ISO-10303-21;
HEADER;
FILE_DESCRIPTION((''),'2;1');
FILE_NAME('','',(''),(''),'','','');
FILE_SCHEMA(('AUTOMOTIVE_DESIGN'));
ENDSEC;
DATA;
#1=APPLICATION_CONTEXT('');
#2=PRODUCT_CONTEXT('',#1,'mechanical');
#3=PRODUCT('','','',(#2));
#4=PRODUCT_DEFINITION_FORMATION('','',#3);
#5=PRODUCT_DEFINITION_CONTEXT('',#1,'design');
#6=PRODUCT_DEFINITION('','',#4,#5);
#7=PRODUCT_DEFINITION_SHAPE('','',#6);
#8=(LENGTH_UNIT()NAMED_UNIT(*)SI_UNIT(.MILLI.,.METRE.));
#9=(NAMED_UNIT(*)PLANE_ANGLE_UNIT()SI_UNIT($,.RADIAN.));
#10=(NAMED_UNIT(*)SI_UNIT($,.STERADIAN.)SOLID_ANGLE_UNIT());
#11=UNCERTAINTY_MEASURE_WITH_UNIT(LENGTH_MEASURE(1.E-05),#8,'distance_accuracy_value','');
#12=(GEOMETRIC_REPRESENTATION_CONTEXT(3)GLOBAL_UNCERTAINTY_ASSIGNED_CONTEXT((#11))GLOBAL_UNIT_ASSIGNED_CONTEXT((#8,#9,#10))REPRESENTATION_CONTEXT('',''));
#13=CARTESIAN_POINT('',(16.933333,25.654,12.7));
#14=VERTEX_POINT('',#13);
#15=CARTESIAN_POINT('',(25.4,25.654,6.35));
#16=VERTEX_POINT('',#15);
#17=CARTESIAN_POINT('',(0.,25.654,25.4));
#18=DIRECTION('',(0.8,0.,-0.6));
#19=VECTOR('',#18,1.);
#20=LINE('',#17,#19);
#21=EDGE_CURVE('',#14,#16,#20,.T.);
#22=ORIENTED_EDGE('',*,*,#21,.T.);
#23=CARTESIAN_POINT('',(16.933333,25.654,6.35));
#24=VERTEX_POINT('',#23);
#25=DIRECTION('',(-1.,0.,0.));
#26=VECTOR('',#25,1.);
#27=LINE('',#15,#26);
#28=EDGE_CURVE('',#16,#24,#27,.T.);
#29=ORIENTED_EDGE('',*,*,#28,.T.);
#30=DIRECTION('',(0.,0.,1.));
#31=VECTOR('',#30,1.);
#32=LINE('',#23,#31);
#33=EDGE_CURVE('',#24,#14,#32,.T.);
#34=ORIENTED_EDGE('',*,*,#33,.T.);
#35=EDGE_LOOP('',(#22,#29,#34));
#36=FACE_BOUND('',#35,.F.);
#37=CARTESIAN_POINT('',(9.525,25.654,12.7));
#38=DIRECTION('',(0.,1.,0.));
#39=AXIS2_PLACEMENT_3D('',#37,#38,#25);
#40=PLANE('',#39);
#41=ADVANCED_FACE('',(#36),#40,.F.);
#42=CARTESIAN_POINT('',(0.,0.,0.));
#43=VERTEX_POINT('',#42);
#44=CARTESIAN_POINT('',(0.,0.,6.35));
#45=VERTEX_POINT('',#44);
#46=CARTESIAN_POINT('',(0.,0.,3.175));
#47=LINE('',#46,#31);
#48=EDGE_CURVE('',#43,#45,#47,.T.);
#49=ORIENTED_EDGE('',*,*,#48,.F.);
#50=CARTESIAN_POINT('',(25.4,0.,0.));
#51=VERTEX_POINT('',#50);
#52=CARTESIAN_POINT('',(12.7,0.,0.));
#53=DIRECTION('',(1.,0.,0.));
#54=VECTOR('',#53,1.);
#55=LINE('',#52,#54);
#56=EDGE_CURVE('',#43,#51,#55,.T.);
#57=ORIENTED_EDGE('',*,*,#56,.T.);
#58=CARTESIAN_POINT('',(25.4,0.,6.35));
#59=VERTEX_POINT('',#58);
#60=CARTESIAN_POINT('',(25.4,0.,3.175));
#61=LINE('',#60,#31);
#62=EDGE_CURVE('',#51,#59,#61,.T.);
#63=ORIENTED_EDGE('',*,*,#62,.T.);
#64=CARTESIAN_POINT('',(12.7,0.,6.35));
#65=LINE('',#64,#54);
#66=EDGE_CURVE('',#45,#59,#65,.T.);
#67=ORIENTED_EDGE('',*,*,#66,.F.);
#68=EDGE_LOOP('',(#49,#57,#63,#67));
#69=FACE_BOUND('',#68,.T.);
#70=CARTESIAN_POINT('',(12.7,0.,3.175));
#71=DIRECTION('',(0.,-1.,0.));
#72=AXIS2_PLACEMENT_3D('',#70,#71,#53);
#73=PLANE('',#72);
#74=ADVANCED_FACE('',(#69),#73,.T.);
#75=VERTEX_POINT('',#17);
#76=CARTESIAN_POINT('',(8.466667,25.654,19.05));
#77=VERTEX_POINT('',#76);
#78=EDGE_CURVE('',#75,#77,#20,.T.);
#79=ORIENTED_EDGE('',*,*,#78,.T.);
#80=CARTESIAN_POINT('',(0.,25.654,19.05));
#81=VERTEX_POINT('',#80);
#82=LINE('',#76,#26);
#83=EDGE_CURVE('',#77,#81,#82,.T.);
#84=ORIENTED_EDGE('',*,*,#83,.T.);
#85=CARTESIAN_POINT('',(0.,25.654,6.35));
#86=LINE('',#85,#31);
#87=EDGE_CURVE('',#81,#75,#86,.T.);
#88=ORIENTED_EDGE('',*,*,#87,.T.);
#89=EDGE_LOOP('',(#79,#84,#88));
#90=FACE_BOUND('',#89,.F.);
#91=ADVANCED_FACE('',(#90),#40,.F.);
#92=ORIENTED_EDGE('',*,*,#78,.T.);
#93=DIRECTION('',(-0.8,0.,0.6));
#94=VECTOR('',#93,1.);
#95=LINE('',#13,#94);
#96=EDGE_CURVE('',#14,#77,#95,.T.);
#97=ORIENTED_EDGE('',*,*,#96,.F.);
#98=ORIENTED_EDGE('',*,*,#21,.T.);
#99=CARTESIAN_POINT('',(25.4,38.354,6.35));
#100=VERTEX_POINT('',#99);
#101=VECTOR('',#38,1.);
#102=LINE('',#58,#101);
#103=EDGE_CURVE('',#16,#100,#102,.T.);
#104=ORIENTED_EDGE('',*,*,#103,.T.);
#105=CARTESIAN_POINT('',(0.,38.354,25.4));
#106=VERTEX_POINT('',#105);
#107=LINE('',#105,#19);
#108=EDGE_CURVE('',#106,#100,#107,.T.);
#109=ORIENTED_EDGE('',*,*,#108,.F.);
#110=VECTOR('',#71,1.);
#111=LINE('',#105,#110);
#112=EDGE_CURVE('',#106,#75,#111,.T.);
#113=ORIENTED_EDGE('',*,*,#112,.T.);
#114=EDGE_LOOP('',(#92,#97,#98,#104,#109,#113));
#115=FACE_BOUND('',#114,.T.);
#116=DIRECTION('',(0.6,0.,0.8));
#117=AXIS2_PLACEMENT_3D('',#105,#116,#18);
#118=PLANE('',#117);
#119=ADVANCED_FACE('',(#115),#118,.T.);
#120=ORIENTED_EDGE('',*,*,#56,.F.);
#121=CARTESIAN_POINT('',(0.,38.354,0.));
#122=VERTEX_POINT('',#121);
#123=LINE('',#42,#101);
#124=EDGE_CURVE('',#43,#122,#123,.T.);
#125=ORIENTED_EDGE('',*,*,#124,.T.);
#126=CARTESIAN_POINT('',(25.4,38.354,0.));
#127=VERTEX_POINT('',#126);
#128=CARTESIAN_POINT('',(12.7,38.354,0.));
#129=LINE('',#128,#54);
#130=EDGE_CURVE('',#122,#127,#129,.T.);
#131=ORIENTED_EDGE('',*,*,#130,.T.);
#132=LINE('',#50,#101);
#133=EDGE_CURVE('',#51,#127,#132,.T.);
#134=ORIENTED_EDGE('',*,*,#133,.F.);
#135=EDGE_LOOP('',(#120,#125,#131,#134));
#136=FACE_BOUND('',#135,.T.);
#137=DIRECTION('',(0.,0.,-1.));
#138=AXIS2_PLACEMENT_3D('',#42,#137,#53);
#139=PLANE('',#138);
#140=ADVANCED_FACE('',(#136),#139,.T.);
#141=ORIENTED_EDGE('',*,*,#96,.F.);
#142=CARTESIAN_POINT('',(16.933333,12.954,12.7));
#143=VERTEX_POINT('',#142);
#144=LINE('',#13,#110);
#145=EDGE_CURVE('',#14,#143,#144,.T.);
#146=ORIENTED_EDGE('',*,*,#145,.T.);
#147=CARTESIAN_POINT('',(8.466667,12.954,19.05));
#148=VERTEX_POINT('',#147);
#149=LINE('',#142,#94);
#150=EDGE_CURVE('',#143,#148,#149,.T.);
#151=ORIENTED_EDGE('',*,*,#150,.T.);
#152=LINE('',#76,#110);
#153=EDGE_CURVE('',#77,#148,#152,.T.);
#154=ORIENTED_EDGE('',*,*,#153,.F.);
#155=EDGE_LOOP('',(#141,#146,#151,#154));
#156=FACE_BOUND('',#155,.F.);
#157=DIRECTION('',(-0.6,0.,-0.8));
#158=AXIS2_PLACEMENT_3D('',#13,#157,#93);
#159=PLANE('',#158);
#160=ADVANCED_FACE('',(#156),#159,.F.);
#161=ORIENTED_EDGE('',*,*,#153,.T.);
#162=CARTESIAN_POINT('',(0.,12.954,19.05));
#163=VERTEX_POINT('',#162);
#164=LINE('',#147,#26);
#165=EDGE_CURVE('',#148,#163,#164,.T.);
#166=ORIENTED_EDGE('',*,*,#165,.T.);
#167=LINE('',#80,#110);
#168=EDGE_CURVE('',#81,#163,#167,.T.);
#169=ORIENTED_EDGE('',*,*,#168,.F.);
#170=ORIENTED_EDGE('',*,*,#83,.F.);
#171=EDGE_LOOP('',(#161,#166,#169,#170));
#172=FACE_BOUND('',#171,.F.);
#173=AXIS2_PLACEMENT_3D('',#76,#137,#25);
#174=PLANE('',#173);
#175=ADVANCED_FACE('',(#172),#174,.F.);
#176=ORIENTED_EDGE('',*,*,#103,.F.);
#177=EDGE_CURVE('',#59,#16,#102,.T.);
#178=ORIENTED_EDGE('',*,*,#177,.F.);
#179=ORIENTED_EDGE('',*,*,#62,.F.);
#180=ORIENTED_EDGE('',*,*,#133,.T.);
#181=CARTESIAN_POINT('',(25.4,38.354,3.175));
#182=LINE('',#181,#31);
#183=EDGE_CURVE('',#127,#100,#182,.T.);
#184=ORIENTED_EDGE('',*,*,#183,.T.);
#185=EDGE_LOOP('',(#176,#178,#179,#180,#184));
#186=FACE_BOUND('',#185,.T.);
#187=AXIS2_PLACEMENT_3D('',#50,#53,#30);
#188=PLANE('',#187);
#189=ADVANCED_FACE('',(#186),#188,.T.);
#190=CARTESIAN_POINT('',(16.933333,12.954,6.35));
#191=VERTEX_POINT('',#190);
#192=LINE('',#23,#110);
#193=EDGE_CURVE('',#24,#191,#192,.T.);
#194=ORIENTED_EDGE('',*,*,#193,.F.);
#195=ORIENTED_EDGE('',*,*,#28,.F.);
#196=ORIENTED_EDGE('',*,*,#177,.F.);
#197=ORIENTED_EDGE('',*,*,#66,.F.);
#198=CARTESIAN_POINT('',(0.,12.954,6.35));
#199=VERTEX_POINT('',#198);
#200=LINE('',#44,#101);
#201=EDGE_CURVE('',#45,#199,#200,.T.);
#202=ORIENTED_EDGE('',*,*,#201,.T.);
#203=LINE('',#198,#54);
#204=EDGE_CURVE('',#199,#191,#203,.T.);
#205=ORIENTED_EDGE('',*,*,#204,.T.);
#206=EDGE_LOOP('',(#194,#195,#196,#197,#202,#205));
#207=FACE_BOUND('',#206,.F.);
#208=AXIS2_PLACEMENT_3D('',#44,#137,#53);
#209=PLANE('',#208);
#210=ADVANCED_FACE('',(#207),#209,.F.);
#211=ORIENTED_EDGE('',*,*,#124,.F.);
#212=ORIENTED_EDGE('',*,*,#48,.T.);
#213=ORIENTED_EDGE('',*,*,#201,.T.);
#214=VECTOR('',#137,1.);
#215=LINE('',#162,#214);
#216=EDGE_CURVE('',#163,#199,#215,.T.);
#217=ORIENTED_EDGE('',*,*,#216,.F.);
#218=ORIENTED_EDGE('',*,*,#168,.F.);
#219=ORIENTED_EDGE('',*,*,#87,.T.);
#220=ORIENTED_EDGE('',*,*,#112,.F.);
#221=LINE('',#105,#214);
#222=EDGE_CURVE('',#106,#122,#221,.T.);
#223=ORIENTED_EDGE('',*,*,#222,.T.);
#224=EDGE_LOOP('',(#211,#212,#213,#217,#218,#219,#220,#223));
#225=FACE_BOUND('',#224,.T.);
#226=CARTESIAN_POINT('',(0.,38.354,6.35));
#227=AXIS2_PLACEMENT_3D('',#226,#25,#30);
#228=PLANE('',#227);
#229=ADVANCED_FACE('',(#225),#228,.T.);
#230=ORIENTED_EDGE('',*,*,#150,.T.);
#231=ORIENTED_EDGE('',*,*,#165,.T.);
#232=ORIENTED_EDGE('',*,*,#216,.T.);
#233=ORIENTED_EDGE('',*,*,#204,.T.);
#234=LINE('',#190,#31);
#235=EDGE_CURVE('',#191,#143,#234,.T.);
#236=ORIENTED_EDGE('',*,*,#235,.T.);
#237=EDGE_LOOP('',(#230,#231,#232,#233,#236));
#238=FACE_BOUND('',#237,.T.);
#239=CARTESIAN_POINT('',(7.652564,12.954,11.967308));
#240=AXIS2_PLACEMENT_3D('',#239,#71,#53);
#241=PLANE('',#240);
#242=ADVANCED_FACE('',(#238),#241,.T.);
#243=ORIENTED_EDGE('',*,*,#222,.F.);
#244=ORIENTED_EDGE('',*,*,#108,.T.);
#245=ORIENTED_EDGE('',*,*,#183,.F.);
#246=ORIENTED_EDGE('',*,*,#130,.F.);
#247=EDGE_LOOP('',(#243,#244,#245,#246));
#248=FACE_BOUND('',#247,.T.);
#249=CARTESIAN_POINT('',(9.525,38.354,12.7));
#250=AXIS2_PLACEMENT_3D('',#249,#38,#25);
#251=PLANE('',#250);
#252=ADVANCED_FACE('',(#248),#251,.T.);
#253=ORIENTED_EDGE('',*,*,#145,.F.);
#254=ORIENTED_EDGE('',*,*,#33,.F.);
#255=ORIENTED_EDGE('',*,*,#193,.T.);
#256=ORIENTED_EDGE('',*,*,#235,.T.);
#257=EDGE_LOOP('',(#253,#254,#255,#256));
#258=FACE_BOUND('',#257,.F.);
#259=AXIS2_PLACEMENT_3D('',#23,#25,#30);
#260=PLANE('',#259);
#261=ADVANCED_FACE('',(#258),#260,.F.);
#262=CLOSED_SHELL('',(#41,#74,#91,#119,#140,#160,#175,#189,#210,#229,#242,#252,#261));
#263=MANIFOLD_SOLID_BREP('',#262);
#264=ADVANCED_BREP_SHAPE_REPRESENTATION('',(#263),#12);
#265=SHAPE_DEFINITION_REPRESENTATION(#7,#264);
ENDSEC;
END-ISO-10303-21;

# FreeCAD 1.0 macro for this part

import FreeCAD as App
import Part
import Sketcher
from FreeCAD import Vector
Q = App.Units.Quantity

doc = App.newDocument("Part")
body = doc.addObject("PartDesign::Body", "Body")

# Sketch on XZ plane
sketch1 = body.newObject("Sketcher::SketchObject", "Sketch")
sketch1.AttachmentSupport = (doc.getObject("XZ_Plane"), [""])
sketch1.MapMode = "FlatFace"
sketch1.addGeometry([
    Part.LineSegment(Vector(0, 6, 0), Vector(0, 0, 0)),
    Part.LineSegment(Vector(0, 0, 0), Vector(25, 0, 0)),
    Part.LineSegment(Vector(25, 0, 0), Vector(25, 6, 0)),
    Part.LineSegment(Vector(25, 6, 0), Vector(0, 6, 0)),
], False)
sketch1.addConstraint([
    Sketcher.Constraint("Coincident", 0, 2, 1, 1),
    Sketcher.Constraint("Coincident", 1, 2, 2, 1),
    Sketcher.Constraint("Coincident", 2, 2, 3, 1),
    Sketcher.Constraint("Coincident", 3, 2, 0, 1),
    Sketcher.Constraint("Vertical", 0),
    Sketcher.Constraint("Horizontal", 1),
    Sketcher.Constraint("Vertical", 2),
    Sketcher.Constraint("Horizontal", 3),
    Sketcher.Constraint("Coincident", 0, 2, -1, 1),
    Sketcher.Constraint("DistanceX", 1, 1, 1, 2, Q("1 in")),
    Sketcher.Constraint("DistanceY", 0, 2, 0, 1, Q("0.25 in")),
])
pad1 = body.newObject("PartDesign::Pad", "Pad")
pad1.Profile = sketch1
pad1.Length = Q("1.51 in")
pad1.Reversed = True

# Sketch on XZ plane
sketch2 = body.newObject("Sketcher::SketchObject", "Sketch001")
sketch2.AttachmentSupport = (doc.getObject("XZ_Plane"), [""])
sketch2.MapMode = "FlatFace"
sketch2.AttachmentOffset = App.Placement(Vector(0, 0, -1.51 * 25.4), App.Rotation())
sketch2.addGeometry([
    Part.LineSegment(Vector(25, 6, 0), Vector(0, 6, 0)),
    Part.LineSegment(Vector(0, 6, 0), Vector(0, 25, 0)),
    Part.LineSegment(Vector(0, 25, 0), Vector(25, 6, 0)),
], False)
sketch2.addConstraint([
    Sketcher.Constraint("Coincident", 0, 2, 1, 1),
    Sketcher.Constraint("Coincident", 1, 2, 2, 1),
    Sketcher.Constraint("Coincident", 2, 2, 0, 1),
    Sketcher.Constraint("Horizontal", 0),
    Sketcher.Constraint("Vertical", 1),
    Sketcher.Constraint("PointOnObject", 0, 2, -2),
    Sketcher.Constraint("DistanceX", 0, 2, 0, 1, Q("1 in")),
    Sketcher.Constraint("DistanceY", -1, 1, 1, 2, Q("1 in")),
    Sketcher.Constraint("DistanceY", 1, 1, 1, 2, Q("0.75 in")),
])
pad2 = body.newObject("PartDesign::Pad", "Pad001")
pad2.Profile = sketch2
pad2.Length = Q("0.5 in")

# Sketch on XZ plane
sketch3 = body.newObject("Sketcher::SketchObject", "Sketch002")
sketch3.AttachmentSupport = (doc.getObject("XZ_Plane"), [""])
sketch3.MapMode = "FlatFace"
sketch3.AttachmentOffset = App.Placement(Vector(0, 0, -1.01 * 25.4), App.Rotation())
sketch3.addGeometry([
    Part.LineSegment(Vector(0, 6, 0), Vector(17, 6, 0)),  # 0
    Part.LineSegment(Vector(17, 6, 0), Vector(17, 13, 0)),  # 1
    Part.LineSegment(Vector(17, 13, 0), Vector(8, 19, 0)),  # 2
    Part.LineSegment(Vector(8, 19, 0), Vector(0, 19, 0)),  # 3
    Part.LineSegment(Vector(0, 19, 0), Vector(0, 6, 0)),  # 4
], False)
sketch3.addConstraint([
    Sketcher.Constraint("Coincident", 0, 2, 1, 1),
    Sketcher.Constraint("Coincident", 1, 2, 2, 1),
    Sketcher.Constraint("Coincident", 2, 2, 3, 1),
    Sketcher.Constraint("Coincident", 3, 2, 4, 1),
    Sketcher.Constraint("Coincident", 4, 2, 0, 1),
    Sketcher.Constraint("Horizontal", 0),
    Sketcher.Constraint("Vertical", 1),
    Sketcher.Constraint("Horizontal", 3),
    Sketcher.Constraint("Vertical", 4),
    Sketcher.Constraint("PointOnObject", 3, 2, -2),
    Sketcher.Constraint("DistanceY", 4, 2, 4, 1, Q("0.5 in")),
    Sketcher.Constraint("DistanceY", 1, 1, 1, 2, Q("0.25 in")),
    Sketcher.Constraint("DistanceY", -1, 1, 1, 2, Q("0.5 in")),
    Sketcher.Constraint("DistanceX", 0, 1, 0, 2, 16.933333),
    Sketcher.Constraint("DistanceX", 3, 2, 3, 1, 8.466667),
])
pad3 = body.newObject("PartDesign::Pad", "Pad002")
pad3.Profile = sketch3
pad3.Length = Q("0.5 in")

# Sketch on XZ plane
sketch4 = body.newObject("Sketcher::SketchObject", "Sketch003")
sketch4.AttachmentSupport = (doc.getObject("XZ_Plane"), [""])
sketch4.MapMode = "FlatFace"
sketch4.AttachmentOffset = App.Placement(Vector(0, 0, -1.01 * 25.4), App.Rotation())
sketch4.addGeometry([
    Part.LineSegment(Vector(0, 6, 0), Vector(17, 6, 0)),  # 0
    Part.LineSegment(Vector(17, 6, 0), Vector(17, 13, 0)),  # 1
    Part.LineSegment(Vector(17, 13, 0), Vector(8, 19, 0)),  # 2
    Part.LineSegment(Vector(8, 19, 0), Vector(0, 19, 0)),  # 3
    Part.LineSegment(Vector(0, 19, 0), Vector(0, 6, 0)),  # 4
], False)
sketch4.addConstraint([
    Sketcher.Constraint("Coincident", 0, 2, 1, 1),
    Sketcher.Constraint("Coincident", 1, 2, 2, 1),
    Sketcher.Constraint("Coincident", 2, 2, 3, 1),
    Sketcher.Constraint("Coincident", 3, 2, 4, 1),
    Sketcher.Constraint("Coincident", 4, 2, 0, 1),
    Sketcher.Constraint("Horizontal", 0),
    Sketcher.Constraint("Vertical", 1),
    Sketcher.Constraint("Horizontal", 3),
    Sketcher.Constraint("Vertical", 4),
    Sketcher.Constraint("PointOnObject", 3, 2, -2),
    Sketcher.Constraint("DistanceY", 4, 2, 4, 1, Q("0.5 in")),
    Sketcher.Constraint("DistanceY", 1, 1, 1, 2, Q("0.25 in")),
    Sketcher.Constraint("DistanceY", -1, 1, 1, 2, Q("0.5 in")),
    Sketcher.Constraint("DistanceX", 0, 1, 0, 2, 16.933333),
    Sketcher.Constraint("DistanceX", 3, 2, 3, 1, 8.466667),
])
pad4 = body.newObject("PartDesign::Pad", "Pad003")
pad4.Profile = sketch4
pad4.Length = Q("0.5 in")

doc.recompute()
